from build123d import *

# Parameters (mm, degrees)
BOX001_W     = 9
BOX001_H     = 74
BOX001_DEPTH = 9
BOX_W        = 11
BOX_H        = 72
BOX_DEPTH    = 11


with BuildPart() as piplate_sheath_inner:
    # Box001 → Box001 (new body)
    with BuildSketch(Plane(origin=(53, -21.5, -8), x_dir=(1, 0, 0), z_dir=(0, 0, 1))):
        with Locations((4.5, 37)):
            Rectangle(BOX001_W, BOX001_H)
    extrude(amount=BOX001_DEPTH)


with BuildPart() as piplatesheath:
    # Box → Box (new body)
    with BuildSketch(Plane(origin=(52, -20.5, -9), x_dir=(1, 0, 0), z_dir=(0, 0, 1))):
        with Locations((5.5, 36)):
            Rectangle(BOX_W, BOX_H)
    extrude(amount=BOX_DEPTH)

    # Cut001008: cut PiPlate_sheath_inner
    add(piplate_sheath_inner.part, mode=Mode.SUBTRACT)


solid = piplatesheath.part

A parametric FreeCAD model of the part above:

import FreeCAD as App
import Part
import Sketcher
from FreeCAD import Vector
Q = App.Units.Quantity

doc = App.newDocument("Part")
params = doc.addObject("Spreadsheet::Sheet", "Params")
for row, (alias, value) in enumerate([
    ("sketch1_width", "9 mm"),
    ("sketch1_height", "74 mm"),
    ("pad1_length", "9 mm"),
    ("sketch2_width", "11 mm"),
    ("sketch2_height", "72 mm"),
    ("pad2_length", "11 mm"),
], start=1):
    params.set(f"A{row}", alias)
    params.set(f"B{row}", "=" + value)
    params.setAlias(f"B{row}", alias)

body = doc.addObject("PartDesign::Body", "Body")

# Sketch on XY plane
sketch1 = doc.addObject("Sketcher::SketchObject", "Sketch")
body.addObject(sketch1)
sketch1.AttachmentSupport = (doc.XY_Plane, [""])
sketch1.MapMode = "FlatFace"
sketch1.AttachmentOffset = App.Placement(Vector(0, 0, -8), App.Rotation())
sketch1.addGeometry(Part.LineSegment(Vector(53, 52.5, 0), Vector(53, -21.5, 0)), False)
sketch1.addGeometry(Part.LineSegment(Vector(53, -21.5, 0), Vector(62, -21.5, 0)), False)
sketch1.addGeometry(Part.LineSegment(Vector(62, -21.5, 0), Vector(62, 52.5, 0)), False)
sketch1.addGeometry(Part.LineSegment(Vector(62, 52.5, 0), Vector(53, 52.5, 0)), False)
sketch1.addConstraint(Sketcher.Constraint("Coincident", 0, 2, 1, 1))
sketch1.addConstraint(Sketcher.Constraint("Coincident", 1, 2, 2, 1))
sketch1.addConstraint(Sketcher.Constraint("Coincident", 2, 2, 3, 1))
sketch1.addConstraint(Sketcher.Constraint("Coincident", 3, 2, 0, 1))
sketch1.addConstraint(Sketcher.Constraint("Vertical", 0))
sketch1.addConstraint(Sketcher.Constraint("Horizontal", 1))
sketch1.addConstraint(Sketcher.Constraint("Vertical", 2))
sketch1.addConstraint(Sketcher.Constraint("Horizontal", 3))
sketch1.addConstraint(Sketcher.Constraint("DistanceX", 1, 1, 1, 2, Q("9 mm")))
sketch1.addConstraint(Sketcher.Constraint("DistanceY", 0, 2, 0, 1, Q("74 mm")))
sketch1.addConstraint(Sketcher.Constraint("DistanceX", -1, 1, 0, 2, Q("53 mm")))
sketch1.addConstraint(Sketcher.Constraint("DistanceY", 0, 2, -1, 1, Q("21.5 mm")))
sketch1.setExpression("Constraints[8]", "Params.sketch1_width")
sketch1.setExpression("Constraints[9]", "Params.sketch1_height")
pad1 = doc.addObject("PartDesign::Pad", "Pad")
body.addObject(pad1)
pad1.Profile = sketch1
pad1.setExpression("Length", "Params.pad1_length")
body2 = doc.addObject("PartDesign::Body", "Body001")

# Sketch on XY plane
sketch2 = doc.addObject("Sketcher::SketchObject", "Sketch001")
body2.addObject(sketch2)
sketch2.AttachmentSupport = (doc.getObject("XY_Plane001"), [""])
sketch2.MapMode = "FlatFace"
sketch2.AttachmentOffset = App.Placement(Vector(0, 0, -9), App.Rotation())
sketch2.addGeometry(Part.LineSegment(Vector(52, 51.5, 0), Vector(52, -20.5, 0)), False)
sketch2.addGeometry(Part.LineSegment(Vector(52, -20.5, 0), Vector(63, -20.5, 0)), False)
sketch2.addGeometry(Part.LineSegment(Vector(63, -20.5, 0), Vector(63, 51.5, 0)), False)
sketch2.addGeometry(Part.LineSegment(Vector(63, 51.5, 0), Vector(52, 51.5, 0)), False)
sketch2.addConstraint(Sketcher.Constraint("Coincident", 0, 2, 1, 1))
sketch2.addConstraint(Sketcher.Constraint("Coincident", 1, 2, 2, 1))
sketch2.addConstraint(Sketcher.Constraint("Coincident", 2, 2, 3, 1))
sketch2.addConstraint(Sketcher.Constraint("Coincident", 3, 2, 0, 1))
sketch2.addConstraint(Sketcher.Constraint("Vertical", 0))
sketch2.addConstraint(Sketcher.Constraint("Horizontal", 1))
sketch2.addConstraint(Sketcher.Constraint("Vertical", 2))
sketch2.addConstraint(Sketcher.Constraint("Horizontal", 3))
sketch2.addConstraint(Sketcher.Constraint("DistanceX", 1, 1, 1, 2, Q("11 mm")))
sketch2.addConstraint(Sketcher.Constraint("DistanceY", 0, 2, 0, 1, Q("72 mm")))
sketch2.addConstraint(Sketcher.Constraint("DistanceX", -1, 1, 0, 2, Q("52 mm")))
sketch2.addConstraint(Sketcher.Constraint("DistanceY", 0, 2, -1, 1, Q("20.5 mm")))
sketch2.setExpression("Constraints[8]", "Params.sketch2_width")
sketch2.setExpression("Constraints[9]", "Params.sketch2_height")
pad2 = doc.addObject("PartDesign::Pad", "Pad001")
body2.addObject(pad2)
pad2.Profile = sketch2
pad2.setExpression("Length", "Params.pad2_length")
doc.recompute()

boolean = doc.addObject("PartDesign::Boolean", "Boolean")
body2.addObject(boolean)
boolean.Type = "Cut"
boolean.addObjects([body])

doc.recompute()
